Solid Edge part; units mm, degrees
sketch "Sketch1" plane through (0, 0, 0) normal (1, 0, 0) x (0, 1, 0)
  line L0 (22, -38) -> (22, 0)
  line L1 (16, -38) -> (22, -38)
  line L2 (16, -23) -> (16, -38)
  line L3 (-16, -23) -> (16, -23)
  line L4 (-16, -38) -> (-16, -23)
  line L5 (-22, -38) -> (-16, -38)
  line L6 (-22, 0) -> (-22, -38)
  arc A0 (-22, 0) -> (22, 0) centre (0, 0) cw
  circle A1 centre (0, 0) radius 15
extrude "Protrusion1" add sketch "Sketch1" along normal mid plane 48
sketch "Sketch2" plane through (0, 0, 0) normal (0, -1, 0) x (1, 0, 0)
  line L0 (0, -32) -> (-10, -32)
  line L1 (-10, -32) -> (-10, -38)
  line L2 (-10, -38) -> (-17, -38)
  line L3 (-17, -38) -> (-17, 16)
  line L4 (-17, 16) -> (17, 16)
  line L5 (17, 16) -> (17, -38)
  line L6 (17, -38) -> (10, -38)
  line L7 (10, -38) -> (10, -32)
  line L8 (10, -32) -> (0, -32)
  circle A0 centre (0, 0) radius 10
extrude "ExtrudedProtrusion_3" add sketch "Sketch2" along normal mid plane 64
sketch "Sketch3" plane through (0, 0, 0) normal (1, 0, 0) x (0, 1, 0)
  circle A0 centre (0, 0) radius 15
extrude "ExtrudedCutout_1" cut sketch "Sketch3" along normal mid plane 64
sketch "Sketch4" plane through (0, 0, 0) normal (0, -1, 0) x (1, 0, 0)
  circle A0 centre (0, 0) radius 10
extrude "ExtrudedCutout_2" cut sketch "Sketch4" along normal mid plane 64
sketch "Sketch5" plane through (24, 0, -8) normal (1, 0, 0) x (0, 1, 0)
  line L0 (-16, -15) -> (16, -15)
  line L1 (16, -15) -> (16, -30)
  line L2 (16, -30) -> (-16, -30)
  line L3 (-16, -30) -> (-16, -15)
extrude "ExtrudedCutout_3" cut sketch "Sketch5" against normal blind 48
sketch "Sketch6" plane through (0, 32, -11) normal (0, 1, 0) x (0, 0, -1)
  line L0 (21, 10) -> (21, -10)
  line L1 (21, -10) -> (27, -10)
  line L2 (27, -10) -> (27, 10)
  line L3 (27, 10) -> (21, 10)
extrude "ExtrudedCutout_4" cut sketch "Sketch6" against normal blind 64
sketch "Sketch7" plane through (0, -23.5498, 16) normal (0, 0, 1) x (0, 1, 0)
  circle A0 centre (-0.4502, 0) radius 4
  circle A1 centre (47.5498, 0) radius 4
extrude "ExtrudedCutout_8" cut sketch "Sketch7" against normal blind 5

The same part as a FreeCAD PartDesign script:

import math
import FreeCAD as App
import Part
import Sketcher

V = App.Vector

doc = App.newDocument("Part")
params = doc.addObject("Spreadsheet::Sheet", "Params")
for row, (alias, value) in enumerate([
    ("sketch1_diameter", "30 mm"),
    ("sketch1_radius", "22 mm"),
    ("sketch1_width", "6 mm"),
    ("sketch1_height", "38 mm"),
    ("sketch1_height2", "15 mm"),
    ("pad1_length", "48 mm"),
    ("sketch2_diameter", "20 mm"),
    ("sketch2_width", "20 mm"),
    ("sketch2_width2", "7 mm"),
    ("sketch2_height", "6 mm"),
    ("sketch2_height2", "54 mm"),
    ("pad2_length", "64 mm"),
    ("sketch3_diameter", "30 mm"),
    ("pocket1_length", "64 mm"),
    ("sketch4_diameter", "20 mm"),
    ("pocket2_length", "64 mm"),
    ("sketch5_width", "32 mm"),
    ("sketch5_height", "15 mm"),
    ("pocket3_length", "48 mm"),
    ("sketch6_width", "20 mm"),
    ("sketch6_height", "6 mm"),
    ("pocket4_length", "64 mm"),
    ("sketch7_diameter", "8 mm"),
    ("pocket5_length", "5 mm"),
], start=1):
    params.set(f"A{row}", alias)
    params.set(f"B{row}", "=" + value)
    params.setAlias(f"B{row}", alias)

body = doc.addObject("PartDesign::Body", "Body")

# Sketch on YZ plane
sketch1 = body.newObject("Sketcher::SketchObject", "Sketch")
sketch1.AttachmentSupport = (doc.getObject("YZ_Plane"), [""])
sketch1.MapMode = "FlatFace"
sketch1.addGeometry(Part.LineSegment(V(16, -38, 0), V(22, -38, 0)), False)
sketch1.addGeometry(Part.LineSegment(V(22, -38, 0), V(22, 0, 0)), False)
sketch1.addGeometry(Part.ArcOfCircle(Part.Circle(V(0, 0, 0), V(0, 0, 1), 22), math.radians(0), math.radians(180)), False)
sketch1.addGeometry(Part.LineSegment(V(-22, 0, 0), V(-22, -38, 0)), False)
sketch1.addGeometry(Part.LineSegment(V(-22, -38, 0), V(-16, -38, 0)), False)
sketch1.addGeometry(Part.LineSegment(V(-16, -38, 0), V(-16, -23, 0)), False)
sketch1.addGeometry(Part.LineSegment(V(-16, -23, 0), V(16, -23, 0)), False)
sketch1.addGeometry(Part.LineSegment(V(16, -23, 0), V(16, -38, 0)), False)
sketch1.addGeometry(Part.Circle(V(0, 0, 0), V(0, 0, 1), 15), False)
sketch1.addConstraint(Sketcher.Constraint("Coincident", 0, 2, 1, 1))
sketch1.addConstraint(Sketcher.Constraint("Tangent", 1, 2, 2, 1))
sketch1.addConstraint(Sketcher.Constraint("Tangent", 2, 2, 3, 1))
sketch1.addConstraint(Sketcher.Constraint("Coincident", 3, 2, 4, 1))
sketch1.addConstraint(Sketcher.Constraint("Coincident", 4, 2, 5, 1))
sketch1.addConstraint(Sketcher.Constraint("Coincident", 5, 2, 6, 1))
sketch1.addConstraint(Sketcher.Constraint("Coincident", 6, 2, 7, 1))
sketch1.addConstraint(Sketcher.Constraint("Coincident", 7, 2, 0, 1))
sketch1.addConstraint(Sketcher.Constraint("Horizontal", 0))
sketch1.addConstraint(Sketcher.Constraint("Vertical", 1))
sketch1.addConstraint(Sketcher.Constraint("Vertical", 3))
sketch1.addConstraint(Sketcher.Constraint("Horizontal", 4))
sketch1.addConstraint(Sketcher.Constraint("Vertical", 5))
sketch1.addConstraint(Sketcher.Constraint("Horizontal", 6))
sketch1.addConstraint(Sketcher.Constraint("Vertical", 7))
sketch1.addConstraint(Sketcher.Constraint("Coincident", 2, 3, -1, 1))
sketch1.addConstraint(Sketcher.Constraint("Coincident", 8, 3, -1, 1))
sketch1.addConstraint(Sketcher.Constraint("Symmetric", 4, 2, 7, 2, -2))
sketch1.addConstraint(Sketcher.Constraint("Diameter", 8, 30.0))
sketch1.addConstraint(Sketcher.Constraint("Radius", 2, 22.0))
sketch1.addConstraint(Sketcher.Constraint("DistanceX", 0, 1, 0, 2, 6.0))
sketch1.addConstraint(Sketcher.Constraint("DistanceY", 1, 1, 1, 2, 38.0))
sketch1.addConstraint(Sketcher.Constraint("DistanceY", 5, 1, 5, 2, 15.0))
sketch1.setExpression("Constraints[18]", "Params.sketch1_diameter")
sketch1.setExpression("Constraints[19]", "Params.sketch1_radius")
sketch1.setExpression("Constraints[20]", "Params.sketch1_width")
sketch1.setExpression("Constraints[21]", "Params.sketch1_height")
sketch1.setExpression("Constraints[22]", "Params.sketch1_height2")
pad1 = body.newObject("PartDesign::Pad", "Pad")
pad1.Profile = sketch1
pad1.setExpression("Length", "Params.pad1_length")
pad1.Midplane = True

# Sketch on XZ plane
sketch2 = body.newObject("Sketcher::SketchObject", "Sketch001")
sketch2.AttachmentSupport = (doc.getObject("XZ_Plane"), [""])
sketch2.MapMode = "FlatFace"
sketch2.addGeometry(Part.LineSegment(V(-10, -32, 0), V(10, -32, 0)), False)
sketch2.addGeometry(Part.LineSegment(V(10, -32, 0), V(10, -38, 0)), False)
sketch2.addGeometry(Part.LineSegment(V(10, -38, 0), V(17, -38, 0)), False)
sketch2.addGeometry(Part.LineSegment(V(17, -38, 0), V(17, 16, 0)), False)
sketch2.addGeometry(Part.LineSegment(V(17, 16, 0), V(-17, 16, 0)), False)
sketch2.addGeometry(Part.LineSegment(V(-17, 16, 0), V(-17, -38, 0)), False)
sketch2.addGeometry(Part.LineSegment(V(-17, -38, 0), V(-10, -38, 0)), False)
sketch2.addGeometry(Part.LineSegment(V(-10, -38, 0), V(-10, -32, 0)), False)
sketch2.addGeometry(Part.Circle(V(0, 0, 0), V(0, 0, 1), 10), False)
sketch2.addConstraint(Sketcher.Constraint("Coincident", 0, 2, 1, 1))
sketch2.addConstraint(Sketcher.Constraint("Coincident", 1, 2, 2, 1))
sketch2.addConstraint(Sketcher.Constraint("Coincident", 2, 2, 3, 1))
sketch2.addConstraint(Sketcher.Constraint("Coincident", 3, 2, 4, 1))
sketch2.addConstraint(Sketcher.Constraint("Coincident", 4, 2, 5, 1))
sketch2.addConstraint(Sketcher.Constraint("Coincident", 5, 2, 6, 1))
sketch2.addConstraint(Sketcher.Constraint("Coincident", 6, 2, 7, 1))
sketch2.addConstraint(Sketcher.Constraint("Coincident", 7, 2, 0, 1))
sketch2.addConstraint(Sketcher.Constraint("Horizontal", 0))
sketch2.addConstraint(Sketcher.Constraint("Vertical", 1))
sketch2.addConstraint(Sketcher.Constraint("Horizontal", 2))
sketch2.addConstraint(Sketcher.Constraint("Vertical", 3))
sketch2.addConstraint(Sketcher.Constraint("Horizontal", 4))
sketch2.addConstraint(Sketcher.Constraint("Vertical", 5))
sketch2.addConstraint(Sketcher.Constraint("Horizontal", 6))
sketch2.addConstraint(Sketcher.Constraint("Vertical", 7))
sketch2.addConstraint(Sketcher.Constraint("Coincident", 8, 3, -1, 1))
sketch2.addConstraint(Sketcher.Constraint("Symmetric", 2, 2, 5, 2, -2))
sketch2.addConstraint(Sketcher.Constraint("Equal", 2, 6))
sketch2.addConstraint(Sketcher.Constraint("Diameter", 8, 20.0))
sketch2.addConstraint(Sketcher.Constraint("DistanceX", 0, 1, 0, 2, 20.0))
sketch2.addConstraint(Sketcher.Constraint("DistanceX", 2, 1, 2, 2, 7.0))
sketch2.addConstraint(Sketcher.Constraint("DistanceY", 1, 2, 1, 1, 6.0))
sketch2.addConstraint(Sketcher.Constraint("DistanceY", 3, 1, 3, 2, 54.0))
sketch2.addConstraint(Sketcher.Constraint("DistanceY", 0, 2, -1, 1, 32.0))
sketch2.setExpression("Constraints[19]", "Params.sketch2_diameter")
sketch2.setExpression("Constraints[20]", "Params.sketch2_width")
sketch2.setExpression("Constraints[21]", "Params.sketch2_width2")
sketch2.setExpression("Constraints[22]", "Params.sketch2_height")
sketch2.setExpression("Constraints[23]", "Params.sketch2_height2")
pad2 = body.newObject("PartDesign::Pad", "Pad001")
pad2.Profile = sketch2
pad2.setExpression("Length", "Params.pad2_length")
pad2.Midplane = True

# Sketch on YZ plane
sketch3 = body.newObject("Sketcher::SketchObject", "Sketch002")
sketch3.AttachmentSupport = (doc.getObject("YZ_Plane"), [""])
sketch3.MapMode = "FlatFace"
sketch3.addGeometry(Part.Circle(V(0, 0, 0), V(0, 0, 1), 15), False)
sketch3.addConstraint(Sketcher.Constraint("Coincident", 0, 3, -1, 1))
sketch3.addConstraint(Sketcher.Constraint("Diameter", 0, 30.0))
sketch3.setExpression("Constraints[1]", "Params.sketch3_diameter")
pocket1 = body.newObject("PartDesign::Pocket", "Pocket")
pocket1.Profile = sketch3
pocket1.setExpression("Length", "Params.pocket1_length")
pocket1.Midplane = True

# Sketch on XZ plane
sketch4 = body.newObject("Sketcher::SketchObject", "Sketch003")
sketch4.AttachmentSupport = (doc.getObject("XZ_Plane"), [""])
sketch4.MapMode = "FlatFace"
sketch4.addGeometry(Part.Circle(V(0, 0, 0), V(0, 0, 1), 10), False)
sketch4.addConstraint(Sketcher.Constraint("Coincident", 0, 3, -1, 1))
sketch4.addConstraint(Sketcher.Constraint("Diameter", 0, 20.0))
sketch4.setExpression("Constraints[1]", "Params.sketch4_diameter")
pocket2 = body.newObject("PartDesign::Pocket", "Pocket001")
pocket2.Profile = sketch4
pocket2.setExpression("Length", "Params.pocket2_length")
pocket2.Midplane = True

# Sketch on YZ plane
sketch5 = body.newObject("Sketcher::SketchObject", "Sketch004")
sketch5.AttachmentSupport = (doc.getObject("YZ_Plane"), [""])
sketch5.MapMode = "FlatFace"
sketch5.AttachmentOffset = App.Placement(V(0, 0, 24), App.Rotation())
sketch5.addGeometry(Part.LineSegment(V(16, -23, 0), V(-16, -23, 0)), False)
sketch5.addGeometry(Part.LineSegment(V(-16, -23, 0), V(-16, -38, 0)), False)
sketch5.addGeometry(Part.LineSegment(V(-16, -38, 0), V(16, -38, 0)), False)
sketch5.addGeometry(Part.LineSegment(V(16, -38, 0), V(16, -23, 0)), False)
sketch5.addConstraint(Sketcher.Constraint("Coincident", 0, 2, 1, 1))
sketch5.addConstraint(Sketcher.Constraint("Coincident", 1, 2, 2, 1))
sketch5.addConstraint(Sketcher.Constraint("Coincident", 2, 2, 3, 1))
sketch5.addConstraint(Sketcher.Constraint("Coincident", 3, 2, 0, 1))
sketch5.addConstraint(Sketcher.Constraint("Horizontal", 0))
sketch5.addConstraint(Sketcher.Constraint("Vertical", 1))
sketch5.addConstraint(Sketcher.Constraint("Horizontal", 2))
sketch5.addConstraint(Sketcher.Constraint("Vertical", 3))
sketch5.addConstraint(Sketcher.Constraint("DistanceX", 0, 2, 0, 1, 32.0))
sketch5.addConstraint(Sketcher.Constraint("DistanceY", 1, 2, 1, 1, 15.0))
sketch5.addConstraint(Sketcher.Constraint("DistanceX", 0, 2, -1, 1, 16.0))
sketch5.addConstraint(Sketcher.Constraint("DistanceY", 0, 2, -1, 1, 23.0))
sketch5.setExpression("Constraints[8]", "Params.sketch5_width")
sketch5.setExpression("Constraints[9]", "Params.sketch5_height")
pocket3 = body.newObject("PartDesign::Pocket", "Pocket002")
pocket3.Profile = sketch5
pocket3.setExpression("Length", "Params.pocket3_length")

# Sketch on XZ plane
sketch6 = body.newObject("Sketcher::SketchObject", "Sketch005")
sketch6.AttachmentSupport = (doc.getObject("XZ_Plane"), [""])
sketch6.MapMode = "FlatFace"
sketch6.AttachmentOffset = App.Placement(V(0, 0, -32), App.Rotation())
sketch6.addGeometry(Part.LineSegment(V(-10, -38, 0), V(-10, -32, 0)), False)
sketch6.addGeometry(Part.LineSegment(V(-10, -32, 0), V(10, -32, 0)), False)
sketch6.addGeometry(Part.LineSegment(V(10, -32, 0), V(10, -38, 0)), False)
sketch6.addGeometry(Part.LineSegment(V(10, -38, 0), V(-10, -38, 0)), False)
sketch6.addConstraint(Sketcher.Constraint("Coincident", 0, 2, 1, 1))
sketch6.addConstraint(Sketcher.Constraint("Coincident", 1, 2, 2, 1))
sketch6.addConstraint(Sketcher.Constraint("Coincident", 2, 2, 3, 1))
sketch6.addConstraint(Sketcher.Constraint("Coincident", 3, 2, 0, 1))
sketch6.addConstraint(Sketcher.Constraint("Vertical", 0))
sketch6.addConstraint(Sketcher.Constraint("Horizontal", 1))
sketch6.addConstraint(Sketcher.Constraint("Vertical", 2))
sketch6.addConstraint(Sketcher.Constraint("Horizontal", 3))
sketch6.addConstraint(Sketcher.Constraint("DistanceX", 1, 1, 1, 2, 20.0))
sketch6.addConstraint(Sketcher.Constraint("DistanceY", 0, 1, 0, 2, 6.0))
sketch6.addConstraint(Sketcher.Constraint("DistanceX", 0, 2, -1, 1, 10.0))
sketch6.addConstraint(Sketcher.Constraint("DistanceY", 0, 2, -1, 1, 32.0))
sketch6.setExpression("Constraints[8]", "Params.sketch6_width")
sketch6.setExpression("Constraints[9]", "Params.sketch6_height")
pocket4 = body.newObject("PartDesign::Pocket", "Pocket003")
pocket4.Profile = sketch6
pocket4.setExpression("Length", "Params.pocket4_length")
pocket4.Reversed = True

# Sketch on XY plane
sketch7 = body.newObject("Sketcher::SketchObject", "Sketch006")
sketch7.AttachmentSupport = (doc.getObject("XY_Plane"), [""])
sketch7.MapMode = "FlatFace"
sketch7.AttachmentOffset = App.Placement(V(0, 0, 16), App.Rotation())
sketch7.addGeometry(Part.Circle(V(0, -24, 0), V(0, 0, 1), 4), False)
sketch7.addGeometry(Part.Circle(V(0, 24, 0), V(0, 0, 1), 4), False)
sketch7.addConstraint(Sketcher.Constraint("Equal", 0, 1))
sketch7.addConstraint(Sketcher.Constraint("Symmetric", 0, 3, 1, 3, -1, 1))
sketch7.addConstraint(Sketcher.Constraint("PointOnObject", 0, 3, -2))
sketch7.addConstraint(Sketcher.Constraint("Diameter", 0, 8.0))
sketch7.addConstraint(Sketcher.Constraint("DistanceY", 0, 3, -1, 1, 24.0))
sketch7.setExpression("Constraints[3]", "Params.sketch7_diameter")
pocket5 = body.newObject("PartDesign::Pocket", "Pocket004")
pocket5.Profile = sketch7
pocket5.setExpression("Length", "Params.pocket5_length")

doc.recompute()
